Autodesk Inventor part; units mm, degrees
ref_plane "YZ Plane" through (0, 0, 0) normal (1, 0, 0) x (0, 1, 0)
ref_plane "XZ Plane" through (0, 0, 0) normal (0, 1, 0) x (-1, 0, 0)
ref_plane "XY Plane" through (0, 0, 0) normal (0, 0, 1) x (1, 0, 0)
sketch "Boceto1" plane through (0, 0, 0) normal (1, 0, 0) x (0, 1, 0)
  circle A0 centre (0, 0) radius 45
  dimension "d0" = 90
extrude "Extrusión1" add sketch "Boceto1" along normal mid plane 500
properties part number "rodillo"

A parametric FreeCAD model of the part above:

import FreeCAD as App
import Part
import Sketcher

V = App.Vector

doc = App.newDocument("Part")
body = doc.addObject("PartDesign::Body", "Body")

# Sketch on YZ plane
sketch1 = doc.addObject("Sketcher::SketchObject", "Sketch")
body.addObject(sketch1)
sketch1.AttachmentSupport = (doc.YZ_Plane, [""])
sketch1.MapMode = "FlatFace"
sketch1.addGeometry(Part.Circle(V(0, 0, 0), V(0, 0, 1), 45), False)
sketch1.addConstraint([
    Sketcher.Constraint("Coincident", 0, 3, -1, 1),
    Sketcher.Constraint("Diameter", 0, 90.0),
])
pad1 = doc.addObject("PartDesign::Pad", "Pad")
body.addObject(pad1)
pad1.Profile = sketch1
pad1.Length = 500
pad1.Midplane = True

doc.recompute()
